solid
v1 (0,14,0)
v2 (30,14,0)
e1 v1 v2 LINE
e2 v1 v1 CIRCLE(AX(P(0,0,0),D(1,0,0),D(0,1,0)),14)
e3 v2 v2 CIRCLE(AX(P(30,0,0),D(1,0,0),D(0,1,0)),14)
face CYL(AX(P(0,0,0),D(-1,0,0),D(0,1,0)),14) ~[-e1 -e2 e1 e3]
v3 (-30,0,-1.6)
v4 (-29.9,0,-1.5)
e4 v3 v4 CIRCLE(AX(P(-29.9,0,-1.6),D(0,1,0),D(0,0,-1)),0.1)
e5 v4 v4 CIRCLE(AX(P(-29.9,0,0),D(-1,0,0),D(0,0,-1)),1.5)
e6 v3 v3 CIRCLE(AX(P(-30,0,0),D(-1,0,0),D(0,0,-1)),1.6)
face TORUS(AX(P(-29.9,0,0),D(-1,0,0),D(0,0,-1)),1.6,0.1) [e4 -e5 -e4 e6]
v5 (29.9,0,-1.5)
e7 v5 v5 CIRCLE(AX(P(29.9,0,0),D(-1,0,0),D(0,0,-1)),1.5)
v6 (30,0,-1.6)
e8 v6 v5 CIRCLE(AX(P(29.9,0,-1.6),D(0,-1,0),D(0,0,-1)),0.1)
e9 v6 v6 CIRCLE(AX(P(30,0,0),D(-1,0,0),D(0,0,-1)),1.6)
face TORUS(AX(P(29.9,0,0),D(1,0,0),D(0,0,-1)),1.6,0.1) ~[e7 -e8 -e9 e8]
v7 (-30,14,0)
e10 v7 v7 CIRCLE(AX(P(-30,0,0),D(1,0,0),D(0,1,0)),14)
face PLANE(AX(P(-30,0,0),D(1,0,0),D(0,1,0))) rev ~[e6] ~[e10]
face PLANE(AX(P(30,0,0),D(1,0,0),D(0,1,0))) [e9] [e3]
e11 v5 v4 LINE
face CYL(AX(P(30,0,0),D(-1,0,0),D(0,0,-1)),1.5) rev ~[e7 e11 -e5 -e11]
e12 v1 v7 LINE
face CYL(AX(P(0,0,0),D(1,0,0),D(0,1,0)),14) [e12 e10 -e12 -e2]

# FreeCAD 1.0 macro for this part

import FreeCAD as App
import Part
import Sketcher

V = App.Vector
Q = App.Units.Quantity


def edges_at(feature, points):
    """Names of the edges that pass closest to the given points."""
    edges = feature.Shape.Edges
    near = lambda p: min(range(len(edges)), key=lambda i: edges[i].distToShape(Part.Vertex(*p))[0])
    return sorted({f"Edge{near(p) + 1}" for p in points})

doc = App.newDocument("Part")
params = doc.addObject("Spreadsheet::Sheet", "Params")
for row, (alias, value) in enumerate([
    ("sketch1_diameter", "28 mm"),
    ("pad1_length", "60 mm"),
    ("sketch2_diameter", "3 mm"),
    ("hole_diameter", "3 mm"),
    ("hole_depth", "60 mm"),
    ("fillet_radius", "0.1 mm"),
], start=1):
    params.set(f"A{row}", alias)
    params.set(f"B{row}", "=" + value)
    params.setAlias(f"B{row}", alias)

body = doc.addObject("PartDesign::Body", "Body")

# Sketch on YZ plane
sketch1 = doc.addObject("Sketcher::SketchObject", "Sketch")
body.addObject(sketch1)
sketch1.AttachmentSupport = (doc.YZ_Plane, [""])
sketch1.MapMode = "FlatFace"
sketch1.addGeometry(Part.Circle(V(0, 0, 0), V(0, 0, 1), 14), False)
sketch1.addConstraint([
    Sketcher.Constraint("Coincident", 0, 3, -1, 1),
    Sketcher.Constraint("Diameter", 0, Q("28 mm")),
])
sketch1.setExpression("Constraints[1]", "Params.sketch1_diameter")
pad1 = doc.addObject("PartDesign::Pad", "Pad")
body.addObject(pad1)
pad1.Profile = sketch1
pad1.setExpression("Length", "Params.pad1_length")
pad1.Midplane = True

# Sketch on YZ plane
sketch2 = doc.addObject("Sketcher::SketchObject", "Sketch001")
body.addObject(sketch2)
sketch2.AttachmentSupport = (doc.YZ_Plane, [""])
sketch2.MapMode = "FlatFace"
sketch2.AttachmentOffset = App.Placement(V(0, 0, 30), App.Rotation())
sketch2.addGeometry(Part.Circle(V(0, 0, 0), V(0, 0, 1), 1.5), False)
sketch2.addConstraint([
    Sketcher.Constraint("Coincident", 0, 3, -1, 1),
    Sketcher.Constraint("Diameter", 0, Q("3 mm")),
])
sketch2.setExpression("Constraints[1]", "Params.sketch2_diameter")
doc.recompute()
hole = doc.addObject("PartDesign::Hole", "Hole")
body.addObject(hole)
hole.Profile = sketch2
hole.ThreadType = "None"
hole.setExpression("Diameter", "Params.hole_diameter")
hole.DepthType = "Dimension"
hole.setExpression("Depth", "Params.hole_depth")
hole.DrillPoint = "Flat"
doc.recompute()

fillet = doc.addObject("PartDesign::Fillet", "Fillet")
body.addObject(fillet)
fillet.Base = (hole, edges_at(hole, [(-30, 0, 1.5), (30, 0, 1.5)]))
fillet.setExpression("Radius", "Params.fillet_radius")

doc.recompute()
